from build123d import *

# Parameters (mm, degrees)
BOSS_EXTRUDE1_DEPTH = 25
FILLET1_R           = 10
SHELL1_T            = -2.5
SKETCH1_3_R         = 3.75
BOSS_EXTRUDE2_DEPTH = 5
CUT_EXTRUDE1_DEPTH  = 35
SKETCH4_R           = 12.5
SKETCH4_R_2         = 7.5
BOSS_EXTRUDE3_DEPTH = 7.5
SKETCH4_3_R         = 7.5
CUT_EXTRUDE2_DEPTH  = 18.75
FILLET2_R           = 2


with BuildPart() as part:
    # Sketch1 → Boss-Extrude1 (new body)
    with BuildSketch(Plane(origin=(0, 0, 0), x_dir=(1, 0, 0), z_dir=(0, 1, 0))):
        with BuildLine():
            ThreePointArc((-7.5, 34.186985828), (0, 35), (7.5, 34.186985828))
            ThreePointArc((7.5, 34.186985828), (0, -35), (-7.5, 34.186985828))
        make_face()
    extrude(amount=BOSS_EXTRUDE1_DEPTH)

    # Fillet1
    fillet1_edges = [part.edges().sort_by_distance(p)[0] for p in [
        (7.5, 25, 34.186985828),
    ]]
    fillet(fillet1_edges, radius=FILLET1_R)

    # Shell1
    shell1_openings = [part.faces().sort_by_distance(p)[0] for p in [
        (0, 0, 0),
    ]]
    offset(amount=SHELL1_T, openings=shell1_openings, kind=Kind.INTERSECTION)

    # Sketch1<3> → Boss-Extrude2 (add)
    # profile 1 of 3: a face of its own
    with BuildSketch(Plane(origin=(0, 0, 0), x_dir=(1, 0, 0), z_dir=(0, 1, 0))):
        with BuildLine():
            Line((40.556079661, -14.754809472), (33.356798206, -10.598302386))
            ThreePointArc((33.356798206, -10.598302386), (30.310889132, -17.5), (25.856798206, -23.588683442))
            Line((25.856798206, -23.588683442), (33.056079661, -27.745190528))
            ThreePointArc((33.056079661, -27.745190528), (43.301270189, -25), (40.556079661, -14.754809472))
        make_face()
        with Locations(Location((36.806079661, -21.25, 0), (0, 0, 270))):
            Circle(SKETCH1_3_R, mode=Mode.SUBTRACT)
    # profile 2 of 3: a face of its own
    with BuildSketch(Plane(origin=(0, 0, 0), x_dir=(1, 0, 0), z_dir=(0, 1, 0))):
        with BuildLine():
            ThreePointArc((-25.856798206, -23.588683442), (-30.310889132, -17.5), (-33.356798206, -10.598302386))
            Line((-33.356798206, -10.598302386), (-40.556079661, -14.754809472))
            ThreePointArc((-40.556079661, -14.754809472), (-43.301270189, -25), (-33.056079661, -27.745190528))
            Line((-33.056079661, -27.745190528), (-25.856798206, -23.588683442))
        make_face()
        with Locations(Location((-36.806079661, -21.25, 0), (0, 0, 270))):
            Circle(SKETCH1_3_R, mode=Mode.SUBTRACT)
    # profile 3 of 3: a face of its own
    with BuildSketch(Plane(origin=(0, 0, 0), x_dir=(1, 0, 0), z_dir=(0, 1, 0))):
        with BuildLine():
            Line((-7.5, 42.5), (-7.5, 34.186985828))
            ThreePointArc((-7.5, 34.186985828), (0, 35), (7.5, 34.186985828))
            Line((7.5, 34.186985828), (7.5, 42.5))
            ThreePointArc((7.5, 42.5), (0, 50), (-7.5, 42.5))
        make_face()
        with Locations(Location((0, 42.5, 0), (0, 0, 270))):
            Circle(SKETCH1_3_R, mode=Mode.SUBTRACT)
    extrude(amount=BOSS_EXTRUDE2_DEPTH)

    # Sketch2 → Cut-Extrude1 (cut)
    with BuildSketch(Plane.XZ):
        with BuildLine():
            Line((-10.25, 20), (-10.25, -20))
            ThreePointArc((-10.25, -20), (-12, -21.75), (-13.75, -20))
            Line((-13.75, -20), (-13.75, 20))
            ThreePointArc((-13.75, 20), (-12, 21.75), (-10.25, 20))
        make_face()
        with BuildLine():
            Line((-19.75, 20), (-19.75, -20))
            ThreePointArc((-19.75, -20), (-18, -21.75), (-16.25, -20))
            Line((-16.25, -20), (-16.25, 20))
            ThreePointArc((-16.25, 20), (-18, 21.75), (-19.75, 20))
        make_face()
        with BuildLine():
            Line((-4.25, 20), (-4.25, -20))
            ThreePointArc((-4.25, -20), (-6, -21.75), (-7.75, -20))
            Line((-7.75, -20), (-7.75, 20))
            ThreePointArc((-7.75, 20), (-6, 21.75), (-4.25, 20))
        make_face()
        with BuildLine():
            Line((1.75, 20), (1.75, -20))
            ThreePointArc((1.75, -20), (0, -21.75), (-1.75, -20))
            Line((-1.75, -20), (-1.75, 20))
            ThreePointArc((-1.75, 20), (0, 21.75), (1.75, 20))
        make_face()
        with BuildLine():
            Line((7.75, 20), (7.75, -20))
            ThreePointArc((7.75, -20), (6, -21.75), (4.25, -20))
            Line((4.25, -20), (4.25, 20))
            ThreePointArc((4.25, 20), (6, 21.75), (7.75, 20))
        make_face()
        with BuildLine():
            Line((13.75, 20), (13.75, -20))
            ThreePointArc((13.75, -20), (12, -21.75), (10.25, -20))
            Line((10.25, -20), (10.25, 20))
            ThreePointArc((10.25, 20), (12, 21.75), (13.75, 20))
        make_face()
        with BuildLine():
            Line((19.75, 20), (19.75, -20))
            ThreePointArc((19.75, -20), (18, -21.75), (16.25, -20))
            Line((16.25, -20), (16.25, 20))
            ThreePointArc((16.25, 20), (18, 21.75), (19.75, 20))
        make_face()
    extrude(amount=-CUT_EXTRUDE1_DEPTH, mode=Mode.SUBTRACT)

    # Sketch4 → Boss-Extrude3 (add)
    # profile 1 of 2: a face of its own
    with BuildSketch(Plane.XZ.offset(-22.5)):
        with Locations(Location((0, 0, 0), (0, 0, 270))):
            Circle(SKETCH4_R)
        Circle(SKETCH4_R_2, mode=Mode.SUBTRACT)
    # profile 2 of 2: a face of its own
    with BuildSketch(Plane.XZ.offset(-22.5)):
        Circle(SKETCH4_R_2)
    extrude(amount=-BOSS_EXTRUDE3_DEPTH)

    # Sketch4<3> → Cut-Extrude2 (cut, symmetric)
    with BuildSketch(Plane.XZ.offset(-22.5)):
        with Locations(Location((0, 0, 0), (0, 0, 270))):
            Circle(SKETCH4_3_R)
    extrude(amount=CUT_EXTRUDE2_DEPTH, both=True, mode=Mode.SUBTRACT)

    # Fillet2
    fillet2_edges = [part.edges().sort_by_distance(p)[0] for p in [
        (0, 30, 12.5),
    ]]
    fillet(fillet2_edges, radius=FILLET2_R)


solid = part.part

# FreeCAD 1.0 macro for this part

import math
import FreeCAD as App
import Part
import Sketcher
Q = App.Units.Quantity


def edges_at(feature, points):
    """Names of the edges that pass closest to the given points."""
    edges = feature.Shape.Edges
    near = lambda p: min(range(len(edges)), key=lambda i: edges[i].distToShape(Part.Vertex(*p))[0])
    return sorted({f"Edge{near(p) + 1}" for p in points})


def faces_at(feature, points):
    """Names of the faces that lie closest to the given points."""
    faces = feature.Shape.Faces
    near = lambda p: min(range(len(faces)), key=lambda i: faces[i].distToShape(Part.Vertex(*p))[0])
    return sorted({f"Face{near(p) + 1}" for p in points})

doc = App.newDocument("Part")
body = doc.addObject("PartDesign::Body", "Body")

# Sketch on XZ plane
sketch1 = doc.addObject("Sketcher::SketchObject", "Sketch")
body.addObject(sketch1)
sketch1.AttachmentSupport = (doc.XZ_Plane, [""])
sketch1.MapMode = "FlatFace"
sketch1.addGeometry(Part.ArcOfCircle(Part.Circle(App.Vector(0, 0, 0), App.Vector(0, 0, 1), 35), math.radians(-102.373625), math.radians(-77.626375)), False)
sketch1.addGeometry(Part.ArcOfCircle(Part.Circle(App.Vector(0, 0, 0), App.Vector(0, 0, 1), 35), math.radians(-77.626375), math.radians(257.626375)), False)
sketch1.addConstraint(Sketcher.Constraint("Tangent", 0, 1, 1, 2))
sketch1.addConstraint(Sketcher.Constraint("Coincident", 1, 1, 0, 2))
sketch1.addConstraint(Sketcher.Constraint("Coincident", 0, 3, -1, 1))
sketch1.addConstraint(Sketcher.Constraint("Horizontal", 0, 1, 1, 1))
sketch1.addConstraint(Sketcher.Constraint("Radius", 0, Q("35 mm")))
sketch1.addConstraint(Sketcher.Constraint("DistanceX", 0, 1, 1, 1, Q("15 mm")))
pad1 = doc.addObject("PartDesign::Pad", "Pad")
body.addObject(pad1)
pad1.Profile = sketch1
pad1.Length = 25
pad1.Reversed = True
doc.recompute()

fillet = doc.addObject("PartDesign::Fillet", "Fillet")
body.addObject(fillet)
fillet.Base = (pad1, edges_at(pad1, [(0, 25, 35)]))
fillet.Radius = 10
doc.recompute()

thickness = doc.addObject("PartDesign::Thickness", "Thickness")
body.addObject(thickness)
thickness.Base = (fillet, faces_at(fillet, [(0, 0, 0)]))
thickness.Value = 2.5
thickness.Reversed = True
thickness.Join = "Intersection"

# Sketch on XZ plane
sketch2 = doc.addObject("Sketcher::SketchObject", "Sketch001")
body.addObject(sketch2)
sketch2.AttachmentSupport = (doc.XZ_Plane, [""])
sketch2.MapMode = "FlatFace"
sketch2.addGeometry(Part.LineSegment(App.Vector(40.55608, 14.754809, 0), App.Vector(33.356798, 10.598302, 0)), False)
sketch2.addGeometry(Part.ArcOfCircle(Part.Circle(App.Vector(0, 0, 0), App.Vector(0, 0, 1), 35), math.radians(17.626375), math.radians(42.373625)), False)
sketch2.addGeometry(Part.LineSegment(App.Vector(25.856798, 23.588683, 0), App.Vector(33.05608, 27.745191, 0)), False)
sketch2.addGeometry(Part.ArcOfCircle(Part.Circle(App.Vector(36.80608, 21.25, 0), App.Vector(0, 0, 1), 7.5), math.radians(-60), math.radians(120)), False)
sketch2.addGeometry(Part.Circle(App.Vector(36.80608, 21.25, 0), App.Vector(0, 0, 1), 3.75), False)
sketch2.addGeometry(Part.ArcOfCircle(Part.Circle(App.Vector(0, 0, 0), App.Vector(0, 0, 1), 35), math.radians(137.626375), math.radians(162.373625)), False)
sketch2.addGeometry(Part.LineSegment(App.Vector(-33.356798, 10.598302, 0), App.Vector(-40.55608, 14.754809, 0)), False)
sketch2.addGeometry(Part.ArcOfCircle(Part.Circle(App.Vector(-36.80608, 21.25, 0), App.Vector(0, 0, 1), 7.5), math.radians(60), math.radians(240)), False)
sketch2.addGeometry(Part.LineSegment(App.Vector(-33.05608, 27.745191, 0), App.Vector(-25.856798, 23.588683, 0)), False)
sketch2.addGeometry(Part.Circle(App.Vector(-36.80608, 21.25, 0), App.Vector(0, 0, 1), 3.75), False)
sketch2.addGeometry(Part.LineSegment(App.Vector(-7.5, -42.5, 0), App.Vector(-7.5, -34.186986, 0)), False)
sketch2.addGeometry(Part.ArcOfCircle(Part.Circle(App.Vector(0, 0, 0), App.Vector(0, 0, 1), 35), math.radians(-102.373625), math.radians(-77.626375)), False)
sketch2.addGeometry(Part.LineSegment(App.Vector(7.5, -34.186986, 0), App.Vector(7.5, -42.5, 0)), False)
sketch2.addGeometry(Part.ArcOfCircle(Part.Circle(App.Vector(0, -42.5, 0), App.Vector(0, 0, 1), 7.5), math.radians(180), math.radians(360)), False)
sketch2.addGeometry(Part.Circle(App.Vector(0, -42.5, 0), App.Vector(0, 0, 1), 3.75), False)
sketch2.addConstraint(Sketcher.Constraint("Coincident", 0, 2, 1, 1))
sketch2.addConstraint(Sketcher.Constraint("Coincident", 1, 2, 2, 1))
sketch2.addConstraint(Sketcher.Constraint("Tangent", 2, 2, 3, 2))
sketch2.addConstraint(Sketcher.Constraint("Tangent", 3, 1, 0, 1))
sketch2.addConstraint(Sketcher.Constraint("Coincident", 5, 2, 6, 1))
sketch2.addConstraint(Sketcher.Constraint("Tangent", 6, 2, 7, 2))
sketch2.addConstraint(Sketcher.Constraint("Tangent", 7, 1, 8, 1))
sketch2.addConstraint(Sketcher.Constraint("Coincident", 8, 2, 5, 1))
sketch2.addConstraint(Sketcher.Constraint("Coincident", 10, 2, 11, 1))
sketch2.addConstraint(Sketcher.Constraint("Coincident", 11, 2, 12, 1))
sketch2.addConstraint(Sketcher.Constraint("Tangent", 12, 2, 13, 2))
sketch2.addConstraint(Sketcher.Constraint("Tangent", 13, 1, 10, 1))
sketch2.addConstraint(Sketcher.Constraint("Vertical", 10))
sketch2.addConstraint(Sketcher.Constraint("Vertical", 12))
sketch2.addConstraint(Sketcher.Constraint("Coincident", 1, 3, -1, 1))
sketch2.addConstraint(Sketcher.Constraint("Coincident", 5, 3, -1, 1))
sketch2.addConstraint(Sketcher.Constraint("Coincident", 11, 3, -1, 1))
sketch2.addConstraint(Sketcher.Constraint("Coincident", 4, 3, 3, 3))
sketch2.addConstraint(Sketcher.Constraint("Coincident", 9, 3, 7, 3))
sketch2.addConstraint(Sketcher.Constraint("Coincident", 14, 3, 13, 3))
sketch2.addConstraint(Sketcher.Constraint("Equal", 1, 5))
sketch2.addConstraint(Sketcher.Constraint("Equal", 3, 7))
sketch2.addConstraint(Sketcher.Constraint("Equal", 4, 9))
sketch2.addConstraint(Sketcher.Constraint("Equal", 5, 11))
sketch2.addConstraint(Sketcher.Constraint("Equal", 7, 13))
sketch2.addConstraint(Sketcher.Constraint("Equal", 9, 14))
sketch2.addConstraint(Sketcher.Constraint("Symmetric", 3, 3, 7, 3, -2))
sketch2.addConstraint(Sketcher.Constraint("PointOnObject", 13, 3, -2))
sketch2.addConstraint(Sketcher.Constraint("Parallel", 0, 2))
sketch2.addConstraint(Sketcher.Constraint("Parallel", 6, 8))
sketch2.addConstraint(Sketcher.Constraint("Horizontal", 0, 2, 5, 2))
sketch2.addConstraint(Sketcher.Constraint("Equal", 0, 2))
sketch2.addConstraint(Sketcher.Constraint("Radius", 1, Q("35 mm")))
sketch2.addConstraint(Sketcher.Constraint("Diameter", 4, Q("7.5 mm")))
sketch2.addConstraint(Sketcher.Constraint("Radius", 3, Q("7.5 mm")))
sketch2.addConstraint(Sketcher.Constraint("Angle", 0, Q("-150 deg")))
sketch2.addConstraint(Sketcher.Constraint("DistanceY", 13, 3, -1, 1, Q("42.5 mm")))
sketch2.addConstraint(Sketcher.Constraint("DistanceY", -1, 1, 3, 3, Q("21.25 mm")))
pad2 = doc.addObject("PartDesign::Pad", "Pad001")
body.addObject(pad2)
pad2.Profile = sketch2
pad2.Length = 5
pad2.Reversed = True

# Sketch on XZ plane
sketch3 = doc.addObject("Sketcher::SketchObject", "Sketch002")
body.addObject(sketch3)
sketch3.AttachmentSupport = (doc.XZ_Plane, [""])
sketch3.MapMode = "FlatFace"
sketch3.addGeometry(Part.LineSegment(App.Vector(-10.25, -20, 0), App.Vector(-10.25, 20, 0)), False)
sketch3.addGeometry(Part.ArcOfCircle(Part.Circle(App.Vector(-12, 20, 0), App.Vector(0, 0, 1), 1.75), math.radians(0), math.radians(180)), False)
sketch3.addGeometry(Part.LineSegment(App.Vector(-13.75, 20, 0), App.Vector(-13.75, -20, 0)), False)
sketch3.addGeometry(Part.ArcOfCircle(Part.Circle(App.Vector(-12, -20, 0), App.Vector(0, 0, 1), 1.75), math.radians(180), math.radians(360)), False)
sketch3.addGeometry(Part.LineSegment(App.Vector(-19.75, 20, 0), App.Vector(-19.75, -20, 0)), False)
sketch3.addGeometry(Part.ArcOfCircle(Part.Circle(App.Vector(-18, -20, 0), App.Vector(0, 0, 1), 1.75), math.radians(180), math.radians(360)), False)
sketch3.addGeometry(Part.LineSegment(App.Vector(-16.25, -20, 0), App.Vector(-16.25, 20, 0)), False)
sketch3.addGeometry(Part.ArcOfCircle(Part.Circle(App.Vector(-18, 20, 0), App.Vector(0, 0, 1), 1.75), math.radians(0), math.radians(180)), False)
sketch3.addGeometry(Part.LineSegment(App.Vector(-4.25, -20, 0), App.Vector(-4.25, 20, 0)), False)
sketch3.addGeometry(Part.ArcOfCircle(Part.Circle(App.Vector(-6, 20, 0), App.Vector(0, 0, 1), 1.75), math.radians(0), math.radians(180)), False)
sketch3.addGeometry(Part.LineSegment(App.Vector(-7.75, 20, 0), App.Vector(-7.75, -20, 0)), False)
sketch3.addGeometry(Part.ArcOfCircle(Part.Circle(App.Vector(-6, -20, 0), App.Vector(0, 0, 1), 1.75), math.radians(180), math.radians(360)), False)
sketch3.addGeometry(Part.LineSegment(App.Vector(1.75, -20, 0), App.Vector(1.75, 20, 0)), False)
sketch3.addGeometry(Part.ArcOfCircle(Part.Circle(App.Vector(0, 20, 0), App.Vector(0, 0, 1), 1.75), math.radians(0), math.radians(180)), False)
sketch3.addGeometry(Part.LineSegment(App.Vector(-1.75, 20, 0), App.Vector(-1.75, -20, 0)), False)
sketch3.addGeometry(Part.ArcOfCircle(Part.Circle(App.Vector(0, -20, 0), App.Vector(0, 0, 1), 1.75), math.radians(180), math.radians(360)), False)
sketch3.addGeometry(Part.LineSegment(App.Vector(7.75, -20, 0), App.Vector(7.75, 20, 0)), False)
sketch3.addGeometry(Part.ArcOfCircle(Part.Circle(App.Vector(6, 20, 0), App.Vector(0, 0, 1), 1.75), math.radians(0), math.radians(180)), False)
sketch3.addGeometry(Part.LineSegment(App.Vector(4.25, 20, 0), App.Vector(4.25, -20, 0)), False)
sketch3.addGeometry(Part.ArcOfCircle(Part.Circle(App.Vector(6, -20, 0), App.Vector(0, 0, 1), 1.75), math.radians(180), math.radians(360)), False)
sketch3.addGeometry(Part.LineSegment(App.Vector(13.75, -20, 0), App.Vector(13.75, 20, 0)), False)
sketch3.addGeometry(Part.ArcOfCircle(Part.Circle(App.Vector(12, 20, 0), App.Vector(0, 0, 1), 1.75), math.radians(0), math.radians(180)), False)
sketch3.addGeometry(Part.LineSegment(App.Vector(10.25, 20, 0), App.Vector(10.25, -20, 0)), False)
sketch3.addGeometry(Part.ArcOfCircle(Part.Circle(App.Vector(12, -20, 0), App.Vector(0, 0, 1), 1.75), math.radians(180), math.radians(360)), False)
sketch3.addGeometry(Part.LineSegment(App.Vector(19.75, -20, 0), App.Vector(19.75, 20, 0)), False)
sketch3.addGeometry(Part.ArcOfCircle(Part.Circle(App.Vector(18, 20, 0), App.Vector(0, 0, 1), 1.75), math.radians(0), math.radians(180)), False)
sketch3.addGeometry(Part.LineSegment(App.Vector(16.25, 20, 0), App.Vector(16.25, -20, 0)), False)
sketch3.addGeometry(Part.ArcOfCircle(Part.Circle(App.Vector(18, -20, 0), App.Vector(0, 0, 1), 1.75), math.radians(180), math.radians(360)), False)
sketch3.addConstraint(Sketcher.Constraint("Tangent", 0, 2, 1, 1))
sketch3.addConstraint(Sketcher.Constraint("Tangent", 1, 2, 2, 1))
sketch3.addConstraint(Sketcher.Constraint("Tangent", 2, 2, 3, 1))
sketch3.addConstraint(Sketcher.Constraint("Tangent", 3, 2, 0, 1))
sketch3.addConstraint(Sketcher.Constraint("Tangent", 4, 2, 5, 1))
sketch3.addConstraint(Sketcher.Constraint("Tangent", 5, 2, 6, 1))
sketch3.addConstraint(Sketcher.Constraint("Tangent", 6, 2, 7, 1))
sketch3.addConstraint(Sketcher.Constraint("Tangent", 7, 2, 4, 1))
sketch3.addConstraint(Sketcher.Constraint("Tangent", 8, 2, 9, 1))
sketch3.addConstraint(Sketcher.Constraint("Tangent", 9, 2, 10, 1))
sketch3.addConstraint(Sketcher.Constraint("Tangent", 10, 2, 11, 1))
sketch3.addConstraint(Sketcher.Constraint("Tangent", 11, 2, 8, 1))
sketch3.addConstraint(Sketcher.Constraint("Tangent", 12, 2, 13, 1))
sketch3.addConstraint(Sketcher.Constraint("Tangent", 13, 2, 14, 1))
sketch3.addConstraint(Sketcher.Constraint("Tangent", 14, 2, 15, 1))
sketch3.addConstraint(Sketcher.Constraint("Tangent", 15, 2, 12, 1))
sketch3.addConstraint(Sketcher.Constraint("Tangent", 16, 2, 17, 1))
sketch3.addConstraint(Sketcher.Constraint("Tangent", 17, 2, 18, 1))
sketch3.addConstraint(Sketcher.Constraint("Tangent", 18, 2, 19, 1))
sketch3.addConstraint(Sketcher.Constraint("Tangent", 19, 2, 16, 1))
sketch3.addConstraint(Sketcher.Constraint("Tangent", 20, 2, 21, 1))
sketch3.addConstraint(Sketcher.Constraint("Tangent", 21, 2, 22, 1))
sketch3.addConstraint(Sketcher.Constraint("Tangent", 22, 2, 23, 1))
sketch3.addConstraint(Sketcher.Constraint("Tangent", 23, 2, 20, 1))
sketch3.addConstraint(Sketcher.Constraint("Tangent", 24, 2, 25, 1))
sketch3.addConstraint(Sketcher.Constraint("Tangent", 25, 2, 26, 1))
sketch3.addConstraint(Sketcher.Constraint("Tangent", 26, 2, 27, 1))
sketch3.addConstraint(Sketcher.Constraint("Tangent", 27, 2, 24, 1))
sketch3.addConstraint(Sketcher.Constraint("Vertical", 0))
sketch3.addConstraint(Sketcher.Constraint("Vertical", 2))
sketch3.addConstraint(Sketcher.Constraint("Vertical", 4))
sketch3.addConstraint(Sketcher.Constraint("Vertical", 6))
sketch3.addConstraint(Sketcher.Constraint("Vertical", 8))
sketch3.addConstraint(Sketcher.Constraint("Vertical", 10))
sketch3.addConstraint(Sketcher.Constraint("Vertical", 12))
sketch3.addConstraint(Sketcher.Constraint("Vertical", 14))
sketch3.addConstraint(Sketcher.Constraint("Vertical", 16))
sketch3.addConstraint(Sketcher.Constraint("Vertical", 18))
sketch3.addConstraint(Sketcher.Constraint("Vertical", 20))
sketch3.addConstraint(Sketcher.Constraint("Vertical", 22))
sketch3.addConstraint(Sketcher.Constraint("Vertical", 24))
sketch3.addConstraint(Sketcher.Constraint("Vertical", 26))
sketch3.addConstraint(Sketcher.Constraint("Equal", 3, 5))
sketch3.addConstraint(Sketcher.Constraint("Equal", 7, 9))
sketch3.addConstraint(Sketcher.Constraint("Equal", 11, 13))
sketch3.addConstraint(Sketcher.Constraint("Equal", 15, 17))
sketch3.addConstraint(Sketcher.Constraint("Equal", 19, 21))
sketch3.addConstraint(Sketcher.Constraint("Equal", 23, 25))
sketch3.addConstraint(Sketcher.Constraint("Symmetric", 13, 3, 15, 3, -1, 1))
sketch3.addConstraint(Sketcher.Constraint("Symmetric", 11, 3, 17, 3, -1, 1))
sketch3.addConstraint(Sketcher.Constraint("Symmetric", 3, 3, 21, 3, -1, 1))
sketch3.addConstraint(Sketcher.Constraint("Symmetric", 5, 3, 25, 3, -1, 1))
sketch3.addConstraint(Sketcher.Constraint("Horizontal", 3, 3, 5, 3))
sketch3.addConstraint(Sketcher.Constraint("Horizontal", 1, 3, 7, 3))
sketch3.addConstraint(Sketcher.Constraint("Horizontal", 7, 3, 9, 3))
sketch3.addConstraint(Sketcher.Constraint("Horizontal", 5, 3, 11, 3))
sketch3.addConstraint(Sketcher.Constraint("Horizontal", 9, 3, 13, 3))
sketch3.addConstraint(Sketcher.Constraint("Horizontal", 11, 3, 15, 3))
sketch3.addConstraint(Sketcher.Constraint("Horizontal", 15, 3, 19, 3))
sketch3.addConstraint(Sketcher.Constraint("Horizontal", 19, 3, 23, 3))
sketch3.addConstraint(Sketcher.Constraint("Horizontal", 23, 3, 27, 3))
sketch3.addConstraint(Sketcher.Constraint("DistanceY", 0, 1, 0, 2, Q("40 mm")))
sketch3.addConstraint(Sketcher.Constraint("Radius", 1, Q("1.75 mm")))
sketch3.addConstraint(Sketcher.Constraint("DistanceX", 1, 3, -1, 1, Q("12 mm")))
sketch3.addConstraint(Sketcher.Constraint("DistanceX", 5, 3, -1, 1, Q("18 mm")))
sketch3.addConstraint(Sketcher.Constraint("DistanceX", 9, 3, -1, 1, Q("6 mm")))
pocket1 = doc.addObject("PartDesign::Pocket", "Pocket")
body.addObject(pocket1)
pocket1.Profile = sketch3
pocket1.Length = 35

# Sketch on XZ plane
sketch4 = doc.addObject("Sketcher::SketchObject", "Sketch003")
body.addObject(sketch4)
sketch4.AttachmentSupport = (doc.XZ_Plane, [""])
sketch4.MapMode = "FlatFace"
sketch4.AttachmentOffset = App.Placement(App.Vector(0, 0, -22.5), App.Rotation())
sketch4.addGeometry(Part.Circle(App.Vector(0, 0, 0), App.Vector(0, 0, 1), 12.5), False)
sketch4.addConstraint(Sketcher.Constraint("Coincident", 0, 3, -1, 1))
sketch4.addConstraint(Sketcher.Constraint("Diameter", 0, Q("25 mm")))
pad3 = doc.addObject("PartDesign::Pad", "Pad002")
body.addObject(pad3)
pad3.Profile = sketch4
pad3.Length = 7.5
pad3.Reversed = True

# Sketch on XZ plane
sketch5 = doc.addObject("Sketcher::SketchObject", "Sketch004")
body.addObject(sketch5)
sketch5.AttachmentSupport = (doc.XZ_Plane, [""])
sketch5.MapMode = "FlatFace"
sketch5.AttachmentOffset = App.Placement(App.Vector(0, 0, -22.5), App.Rotation())
sketch5.addGeometry(Part.Circle(App.Vector(0, 0, 0), App.Vector(0, 0, 1), 7.5), False)
sketch5.addConstraint(Sketcher.Constraint("Coincident", 0, 3, -1, 1))
sketch5.addConstraint(Sketcher.Constraint("Diameter", 0, Q("15 mm")))
pocket2 = doc.addObject("PartDesign::Pocket", "Pocket001")
body.addObject(pocket2)
pocket2.Profile = sketch5
pocket2.Length = 37.5
pocket2.Midplane = True
doc.recompute()

fillet2 = doc.addObject("PartDesign::Fillet", "Fillet001")
body.addObject(fillet2)
fillet2.Base = (pocket2, edges_at(pocket2, [(0, 30, 12.5)]))
fillet2.Radius = 2

doc.recompute()
